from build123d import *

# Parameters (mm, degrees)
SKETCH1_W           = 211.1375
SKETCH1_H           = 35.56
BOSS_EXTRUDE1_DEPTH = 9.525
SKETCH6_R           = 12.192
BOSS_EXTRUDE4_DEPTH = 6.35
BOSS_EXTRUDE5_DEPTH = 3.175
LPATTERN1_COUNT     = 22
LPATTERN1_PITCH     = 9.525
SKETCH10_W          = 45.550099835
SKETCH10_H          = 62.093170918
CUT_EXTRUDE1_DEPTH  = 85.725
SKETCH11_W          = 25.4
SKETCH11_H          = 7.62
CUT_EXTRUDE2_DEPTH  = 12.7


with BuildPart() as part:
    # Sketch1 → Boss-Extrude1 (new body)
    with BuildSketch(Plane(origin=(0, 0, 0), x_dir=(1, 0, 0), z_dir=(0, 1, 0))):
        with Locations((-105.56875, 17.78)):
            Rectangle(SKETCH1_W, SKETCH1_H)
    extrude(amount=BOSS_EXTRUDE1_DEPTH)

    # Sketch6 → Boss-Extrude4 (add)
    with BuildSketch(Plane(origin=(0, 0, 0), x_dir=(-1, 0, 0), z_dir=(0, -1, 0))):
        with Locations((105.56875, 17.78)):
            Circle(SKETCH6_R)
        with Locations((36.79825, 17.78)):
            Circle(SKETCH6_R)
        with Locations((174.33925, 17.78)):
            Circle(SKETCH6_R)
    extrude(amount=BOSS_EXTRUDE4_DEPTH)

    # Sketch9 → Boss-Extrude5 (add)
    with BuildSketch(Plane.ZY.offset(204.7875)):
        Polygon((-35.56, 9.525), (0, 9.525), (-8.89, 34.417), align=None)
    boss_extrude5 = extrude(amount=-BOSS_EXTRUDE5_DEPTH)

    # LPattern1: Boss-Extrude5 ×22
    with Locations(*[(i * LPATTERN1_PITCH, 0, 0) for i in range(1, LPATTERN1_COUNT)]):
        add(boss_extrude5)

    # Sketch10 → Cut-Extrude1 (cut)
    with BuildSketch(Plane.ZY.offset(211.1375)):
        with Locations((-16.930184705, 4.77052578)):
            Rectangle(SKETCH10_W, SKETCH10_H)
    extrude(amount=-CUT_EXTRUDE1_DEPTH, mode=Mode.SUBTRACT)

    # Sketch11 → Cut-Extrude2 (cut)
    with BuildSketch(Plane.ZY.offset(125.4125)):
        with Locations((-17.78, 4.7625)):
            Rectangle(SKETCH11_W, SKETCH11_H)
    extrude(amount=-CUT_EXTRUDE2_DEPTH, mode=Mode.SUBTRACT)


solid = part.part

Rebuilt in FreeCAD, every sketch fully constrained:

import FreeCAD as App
import Part
import Sketcher
from FreeCAD import Vector
Q = App.Units.Quantity


def add_polygon(sketch, points):
    """Adds a closed chain of lines whose ends are joined by coincident constraints."""
    first, n = sketch.GeometryCount, len(points)
    for a, b in zip(points, points[1:] + points[:1]):
        sketch.addGeometry(Part.LineSegment(App.Vector(*a, 0), App.Vector(*b, 0)), False)
    for i in range(n):
        sketch.addConstraint(Sketcher.Constraint("Coincident", first + i, 2, first + (i + 1) % n, 1))

doc = App.newDocument("Part")
params = doc.addObject("Spreadsheet::Sheet", "Params")
for row, (alias, value) in enumerate([
    ("sketch1_height", "1.4 in"),
    ("sketch1_width", "8.3125 in"),
    ("pad1_length", "0.375 in"),
    ("sketch2_diameter", "0.96 in"),
    ("pad2_length", "0.25 in"),
    ("sketch3_height", "1.4 in"),
    ("pad3_length", "0.125 in"),
    ("linearpattern_pitch", "0.375 in"),
    ("pocket1_length", "3.375 in"),
    ("sketch5_height", "1 in"),
    ("sketch5_width", "0.3 in"),
    ("pocket2_length", "0.5 in"),
], start=1):
    params.set(f"A{row}", alias)
    params.set(f"B{row}", "=" + value)
    params.setAlias(f"B{row}", alias)

body = doc.addObject("PartDesign::Body", "Body")

sketch1 = doc.addObject("Sketcher::SketchObject", "Sketch")
body.addObject(sketch1)
sketch1.AttachmentSupport = (doc.XZ_Plane, [""])
sketch1.MapMode = "FlatFace"
add_polygon(sketch1, [(-211, -36), (-211, 0), (0, 0), (0, -36)])
sketch1.addConstraint([
    Sketcher.Constraint("Vertical", 0),
    Sketcher.Constraint("Horizontal", 1),
    Sketcher.Constraint("Vertical", 2),
    Sketcher.Constraint("Horizontal", 3),
    Sketcher.Constraint("Coincident", 1, 2, -1, 1),
    Sketcher.Constraint("DistanceY", 0, 1, 0, 2, Q("1.4 in")),
    Sketcher.Constraint("DistanceX", 1, 1, 1, 2, Q("8.3125 in")),
])
sketch1.setExpression("Constraints[9]", "Params.sketch1_height")
sketch1.setExpression("Constraints[10]", "Params.sketch1_width")
pad1 = doc.addObject("PartDesign::Pad", "Pad")
body.addObject(pad1)
pad1.Profile = sketch1
pad1.setExpression("Length", "Params.pad1_length")
pad1.Reversed = True

sketch2 = doc.addObject("Sketcher::SketchObject", "Sketch001")
body.addObject(sketch2)
sketch2.AttachmentSupport = (doc.XZ_Plane, [""])
sketch2.MapMode = "FlatFace"
sketch2.addGeometry([
    Part.Circle(Vector(-106, -18, 0), Vector(0, 0, 1), 12),
    Part.Circle(Vector(-37, -18, 0), Vector(0, 0, 1), 12),
    Part.Circle(Vector(-174, -18, 0), Vector(0, 0, 1), 12),
], False)
sketch2.addConstraint([
    Sketcher.Constraint("Equal", 0, 1),
    Sketcher.Constraint("Equal", 1, 2),
    Sketcher.Constraint("Horizontal", 0, 3, 1, 3),
    Sketcher.Constraint("Horizontal", 1, 3, 2, 3),
    Sketcher.Constraint("Diameter", 0, Q("0.96 in")),
    Sketcher.Constraint("DistanceY", 0, 3, -1, 1, Q("0.7 in")),
    Sketcher.Constraint("DistanceX", 0, 3, -1, 1, Q("4.15625 in")),
    Sketcher.Constraint("DistanceX", 2, 3, 1, 3, Q("5.415 in")),
    Sketcher.Constraint("DistanceX", 0, 3, 1, 3, Q("2.7075 in")),
])
sketch2.setExpression("Constraints[4]", "Params.sketch2_diameter")
pad2 = doc.addObject("PartDesign::Pad", "Pad001")
body.addObject(pad2)
pad2.Profile = sketch2
pad2.setExpression("Length", "Params.pad2_length")

sketch3 = doc.addObject("Sketcher::SketchObject", "Sketch002")
body.addObject(sketch3)
sketch3.AttachmentSupport = (doc.YZ_Plane, [""])
sketch3.MapMode = "FlatFace"
sketch3.AttachmentOffset = App.Placement(Vector(0, 0, -8.0625 * 25.4), App.Rotation())
add_polygon(sketch3, [(10, -36), (10, 0), (34, -9)])
sketch3.addConstraint([
    Sketcher.Constraint("Vertical", 0),
    Sketcher.Constraint("PointOnObject", 0, 2, -1),
    Sketcher.Constraint("DistanceY", 0, 1, 0, 2, Q("1.4 in")),
    Sketcher.Constraint("DistanceY", 1, 2, -1, 1, Q("0.35 in")),
    Sketcher.Constraint("DistanceX", 0, 2, 1, 2, Q("0.98 in")),
    Sketcher.Constraint("DistanceX", -1, 1, 0, 2, Q("0.375 in")),
])
sketch3.setExpression("Constraints[5]", "Params.sketch3_height")
pad3 = doc.addObject("PartDesign::Pad", "Pad002")
body.addObject(pad3)
pad3.Profile = sketch3
pad3.setExpression("Length", "Params.pad3_length")
doc.recompute()

linearpattern = doc.addObject("PartDesign::LinearPattern", "LinearPattern")
body.addObject(linearpattern)
linearpattern.Originals = [pad3]
linearpattern.Direction = (doc.X_Axis, [""])
linearpattern.Mode = "offset"
linearpattern.setExpression("Offset", "Params.linearpattern_pitch")
linearpattern.Occurrences = 22
body.Tip = linearpattern

sketch4 = doc.addObject("Sketcher::SketchObject", "Sketch003")
body.addObject(sketch4)
sketch4.AttachmentSupport = (doc.YZ_Plane, [""])
sketch4.MapMode = "FlatFace"
sketch4.AttachmentOffset = App.Placement(Vector(0, 0, -8.3125 * 25.4), App.Rotation())
add_polygon(sketch4, [(36, -40), (-26, -40), (-26, 6), (36, 6)])
sketch4.addConstraint([
    Sketcher.Constraint("Horizontal", 0),
    Sketcher.Constraint("Vertical", 1),
    Sketcher.Constraint("Horizontal", 2),
    Sketcher.Constraint("Vertical", 3),
    Sketcher.Constraint("DistanceY", 1, 1, 1, 2, Q("45.5501 mm")),
    Sketcher.Constraint("DistanceX", 0, 2, 0, 1, Q("62.093171 mm")),
    Sketcher.Constraint("DistanceX", 0, 2, -1, 1, Q("26.27606 mm")),
    Sketcher.Constraint("DistanceY", 0, 2, -1, 1, Q("39.705235 mm")),
])
pocket1 = doc.addObject("PartDesign::Pocket", "Pocket")
body.addObject(pocket1)
pocket1.Profile = sketch4
pocket1.setExpression("Length", "Params.pocket1_length")
pocket1.Reversed = True

sketch5 = doc.addObject("Sketcher::SketchObject", "Sketch004")
body.addObject(sketch5)
sketch5.AttachmentSupport = (doc.YZ_Plane, [""])
sketch5.MapMode = "FlatFace"
sketch5.AttachmentOffset = App.Placement(Vector(0, 0, -4.9375 * 25.4), App.Rotation())
add_polygon(sketch5, [(9, -30), (1, -30), (1, -5), (9, -5)])
sketch5.addConstraint([
    Sketcher.Constraint("Horizontal", 0),
    Sketcher.Constraint("Vertical", 1),
    Sketcher.Constraint("Horizontal", 2),
    Sketcher.Constraint("Vertical", 3),
    Sketcher.Constraint("DistanceY", 1, 1, 1, 2, Q("1 in")),
    Sketcher.Constraint("DistanceX", 0, 2, 0, 1, Q("0.3 in")),
    Sketcher.Constraint("DistanceY", 0, 2, -1, 1, Q("1.2 in")),
    Sketcher.Constraint("DistanceX", -1, 1, 0, 2, Q("0.0375 in")),
])
sketch5.setExpression("Constraints[8]", "Params.sketch5_height")
sketch5.setExpression("Constraints[9]", "Params.sketch5_width")
pocket2 = doc.addObject("PartDesign::Pocket", "Pocket001")
body.addObject(pocket2)
pocket2.Profile = sketch5
pocket2.setExpression("Length", "Params.pocket2_length")
pocket2.Reversed = True

doc.recompute()
